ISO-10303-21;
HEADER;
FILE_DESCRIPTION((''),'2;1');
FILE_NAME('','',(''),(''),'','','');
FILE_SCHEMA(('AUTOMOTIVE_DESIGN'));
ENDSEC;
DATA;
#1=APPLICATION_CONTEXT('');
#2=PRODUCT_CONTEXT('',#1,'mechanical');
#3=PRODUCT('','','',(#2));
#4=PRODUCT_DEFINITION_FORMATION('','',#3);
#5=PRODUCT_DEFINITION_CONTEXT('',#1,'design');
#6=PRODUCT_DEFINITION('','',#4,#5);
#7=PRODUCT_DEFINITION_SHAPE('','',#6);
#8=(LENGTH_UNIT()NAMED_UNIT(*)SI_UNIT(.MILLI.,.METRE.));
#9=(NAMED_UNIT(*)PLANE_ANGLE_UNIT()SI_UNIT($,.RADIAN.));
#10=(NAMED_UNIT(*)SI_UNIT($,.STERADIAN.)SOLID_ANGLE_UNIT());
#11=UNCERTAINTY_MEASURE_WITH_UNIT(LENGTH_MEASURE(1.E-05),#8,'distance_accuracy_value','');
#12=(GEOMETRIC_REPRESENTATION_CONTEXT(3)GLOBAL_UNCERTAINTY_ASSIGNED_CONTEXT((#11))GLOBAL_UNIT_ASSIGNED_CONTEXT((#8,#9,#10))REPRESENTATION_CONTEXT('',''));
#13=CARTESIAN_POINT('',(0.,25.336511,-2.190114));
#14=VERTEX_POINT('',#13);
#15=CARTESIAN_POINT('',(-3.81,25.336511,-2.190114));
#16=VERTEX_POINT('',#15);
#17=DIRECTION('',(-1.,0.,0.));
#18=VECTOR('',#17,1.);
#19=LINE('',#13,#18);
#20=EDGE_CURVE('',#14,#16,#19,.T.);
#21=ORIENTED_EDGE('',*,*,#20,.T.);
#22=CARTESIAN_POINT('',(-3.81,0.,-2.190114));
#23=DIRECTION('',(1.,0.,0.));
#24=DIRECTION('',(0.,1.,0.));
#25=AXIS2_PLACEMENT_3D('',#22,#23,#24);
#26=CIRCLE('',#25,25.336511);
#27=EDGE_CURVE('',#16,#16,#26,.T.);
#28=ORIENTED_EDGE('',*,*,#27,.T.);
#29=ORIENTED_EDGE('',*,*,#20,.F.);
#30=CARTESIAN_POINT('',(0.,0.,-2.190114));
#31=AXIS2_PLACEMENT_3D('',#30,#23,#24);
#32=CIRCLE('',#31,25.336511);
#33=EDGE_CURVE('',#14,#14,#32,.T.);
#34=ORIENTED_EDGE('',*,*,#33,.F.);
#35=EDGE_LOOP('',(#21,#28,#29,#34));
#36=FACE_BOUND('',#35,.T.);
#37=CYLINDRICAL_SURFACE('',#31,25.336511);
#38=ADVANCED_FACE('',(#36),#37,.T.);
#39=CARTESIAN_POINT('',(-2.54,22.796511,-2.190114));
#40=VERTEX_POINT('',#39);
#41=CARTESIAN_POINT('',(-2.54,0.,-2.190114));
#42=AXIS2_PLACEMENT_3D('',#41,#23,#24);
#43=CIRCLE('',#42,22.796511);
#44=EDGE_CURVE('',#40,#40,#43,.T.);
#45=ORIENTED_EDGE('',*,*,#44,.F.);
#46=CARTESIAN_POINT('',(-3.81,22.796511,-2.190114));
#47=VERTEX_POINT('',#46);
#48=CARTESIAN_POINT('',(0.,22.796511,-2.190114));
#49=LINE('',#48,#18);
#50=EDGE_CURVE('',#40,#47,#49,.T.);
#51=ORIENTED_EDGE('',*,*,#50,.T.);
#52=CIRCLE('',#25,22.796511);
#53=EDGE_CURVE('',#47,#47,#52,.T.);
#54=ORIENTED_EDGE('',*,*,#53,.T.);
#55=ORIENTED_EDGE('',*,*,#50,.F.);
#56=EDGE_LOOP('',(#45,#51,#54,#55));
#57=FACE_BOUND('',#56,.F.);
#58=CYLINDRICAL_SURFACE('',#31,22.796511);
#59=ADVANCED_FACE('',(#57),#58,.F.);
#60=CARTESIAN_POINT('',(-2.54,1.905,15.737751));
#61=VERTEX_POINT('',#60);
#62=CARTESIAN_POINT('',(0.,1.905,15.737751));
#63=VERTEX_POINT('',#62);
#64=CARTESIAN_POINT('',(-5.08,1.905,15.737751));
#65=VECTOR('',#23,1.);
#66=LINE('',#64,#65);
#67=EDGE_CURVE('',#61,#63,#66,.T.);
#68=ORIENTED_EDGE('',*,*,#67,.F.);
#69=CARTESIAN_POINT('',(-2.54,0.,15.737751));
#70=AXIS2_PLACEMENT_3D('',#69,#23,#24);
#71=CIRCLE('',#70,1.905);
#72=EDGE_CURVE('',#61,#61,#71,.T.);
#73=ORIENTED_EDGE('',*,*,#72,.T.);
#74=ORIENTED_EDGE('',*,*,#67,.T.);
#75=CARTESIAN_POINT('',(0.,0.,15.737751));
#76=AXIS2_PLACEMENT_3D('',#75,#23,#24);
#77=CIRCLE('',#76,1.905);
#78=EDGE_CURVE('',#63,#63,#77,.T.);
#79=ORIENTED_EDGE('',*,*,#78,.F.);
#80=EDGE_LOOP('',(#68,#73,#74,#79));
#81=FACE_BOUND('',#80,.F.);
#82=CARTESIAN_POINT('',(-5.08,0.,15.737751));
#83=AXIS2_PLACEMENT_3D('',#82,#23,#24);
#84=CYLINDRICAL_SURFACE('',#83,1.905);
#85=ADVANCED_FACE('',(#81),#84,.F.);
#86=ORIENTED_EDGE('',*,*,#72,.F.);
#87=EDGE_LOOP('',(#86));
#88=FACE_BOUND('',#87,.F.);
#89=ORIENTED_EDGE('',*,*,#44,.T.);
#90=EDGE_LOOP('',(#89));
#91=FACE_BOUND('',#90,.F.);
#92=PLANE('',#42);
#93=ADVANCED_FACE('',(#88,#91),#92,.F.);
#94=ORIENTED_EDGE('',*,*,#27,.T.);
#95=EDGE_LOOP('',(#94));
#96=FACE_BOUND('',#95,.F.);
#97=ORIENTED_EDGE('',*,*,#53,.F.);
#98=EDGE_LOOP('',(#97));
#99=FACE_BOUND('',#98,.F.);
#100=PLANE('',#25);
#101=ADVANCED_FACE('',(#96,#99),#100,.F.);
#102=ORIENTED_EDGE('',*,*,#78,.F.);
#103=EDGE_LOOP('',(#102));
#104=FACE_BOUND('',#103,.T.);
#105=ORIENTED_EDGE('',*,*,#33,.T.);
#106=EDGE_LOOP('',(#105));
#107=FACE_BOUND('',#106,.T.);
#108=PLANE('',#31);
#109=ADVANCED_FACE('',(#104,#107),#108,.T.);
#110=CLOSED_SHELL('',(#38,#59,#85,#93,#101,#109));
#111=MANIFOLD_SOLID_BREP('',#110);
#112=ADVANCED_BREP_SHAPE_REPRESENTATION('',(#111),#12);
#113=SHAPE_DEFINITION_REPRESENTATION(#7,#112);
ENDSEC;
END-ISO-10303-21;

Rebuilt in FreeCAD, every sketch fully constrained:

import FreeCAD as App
import Part
import Sketcher

V = App.Vector
Q = App.Units.Quantity


def faces_at(feature, points):
    """Names of the faces that lie closest to the given points."""
    faces = feature.Shape.Faces
    near = lambda p: min(range(len(faces)), key=lambda i: faces[i].distToShape(Part.Vertex(*p))[0])
    return sorted({f"Face{near(p) + 1}" for p in points})

doc = App.newDocument("Part")
body = doc.addObject("PartDesign::Body", "Body")

sketch1 = body.newObject("Sketcher::SketchObject", "Sketch")
sketch1.AttachmentSupport = (doc.getObject("YZ_Plane"), [""])
sketch1.MapMode = "FlatFace"
sketch1.addGeometry(Part.Circle(V(0, -2, 0), V(0, 0, 1), 25), False)
sketch1.addConstraint([
    Sketcher.Constraint("PointOnObject", 0, 3, -2),
    Sketcher.Constraint("Diameter", 0, 50.673022),
    Sketcher.Constraint("DistanceY", 0, 3, -1, 1, 2.190114),
])
pad1 = body.newObject("PartDesign::Pad", "Pad")
pad1.Profile = sketch1
pad1.Length = Q("0.15 in")
pad1.Reversed = True
doc.recompute()

thickness = body.newObject("PartDesign::Thickness", "Thickness")
thickness.Base = (pad1, faces_at(pad1, [(-3.81, 0, -2.19)]))
thickness.Value = Q("0.1 in")
thickness.Reversed = True
thickness.Join = "Arc"

sketch2 = body.newObject("Sketcher::SketchObject", "Sketch001")
sketch2.AttachmentSupport = (doc.getObject("YZ_Plane"), [""])
sketch2.MapMode = "FlatFace"
sketch2.AttachmentOffset = App.Placement(V(0, 0, -0.1 * 25.4), App.Rotation())
sketch2.addGeometry(Part.Circle(V(0, 15.7, 0), V(0, 0, 1), 1.9), False)
sketch2.addConstraint([
    Sketcher.Constraint("PointOnObject", 0, 3, -2),
    Sketcher.Constraint("Diameter", 0, Q("0.15 in")),
    Sketcher.Constraint("DistanceY", -1, 1, 0, 3, 15.737751),
])
doc.recompute()
hole = body.newObject("PartDesign::Hole", "Hole")
hole.Profile = sketch2
hole.ThreadType = "None"
hole.Diameter = Q("0.15 in")
hole.DepthType = "Dimension"
hole.Depth = Q("0.1 in")
hole.DrillPoint = "Flat"
hole.Reversed = True

doc.recompute()
